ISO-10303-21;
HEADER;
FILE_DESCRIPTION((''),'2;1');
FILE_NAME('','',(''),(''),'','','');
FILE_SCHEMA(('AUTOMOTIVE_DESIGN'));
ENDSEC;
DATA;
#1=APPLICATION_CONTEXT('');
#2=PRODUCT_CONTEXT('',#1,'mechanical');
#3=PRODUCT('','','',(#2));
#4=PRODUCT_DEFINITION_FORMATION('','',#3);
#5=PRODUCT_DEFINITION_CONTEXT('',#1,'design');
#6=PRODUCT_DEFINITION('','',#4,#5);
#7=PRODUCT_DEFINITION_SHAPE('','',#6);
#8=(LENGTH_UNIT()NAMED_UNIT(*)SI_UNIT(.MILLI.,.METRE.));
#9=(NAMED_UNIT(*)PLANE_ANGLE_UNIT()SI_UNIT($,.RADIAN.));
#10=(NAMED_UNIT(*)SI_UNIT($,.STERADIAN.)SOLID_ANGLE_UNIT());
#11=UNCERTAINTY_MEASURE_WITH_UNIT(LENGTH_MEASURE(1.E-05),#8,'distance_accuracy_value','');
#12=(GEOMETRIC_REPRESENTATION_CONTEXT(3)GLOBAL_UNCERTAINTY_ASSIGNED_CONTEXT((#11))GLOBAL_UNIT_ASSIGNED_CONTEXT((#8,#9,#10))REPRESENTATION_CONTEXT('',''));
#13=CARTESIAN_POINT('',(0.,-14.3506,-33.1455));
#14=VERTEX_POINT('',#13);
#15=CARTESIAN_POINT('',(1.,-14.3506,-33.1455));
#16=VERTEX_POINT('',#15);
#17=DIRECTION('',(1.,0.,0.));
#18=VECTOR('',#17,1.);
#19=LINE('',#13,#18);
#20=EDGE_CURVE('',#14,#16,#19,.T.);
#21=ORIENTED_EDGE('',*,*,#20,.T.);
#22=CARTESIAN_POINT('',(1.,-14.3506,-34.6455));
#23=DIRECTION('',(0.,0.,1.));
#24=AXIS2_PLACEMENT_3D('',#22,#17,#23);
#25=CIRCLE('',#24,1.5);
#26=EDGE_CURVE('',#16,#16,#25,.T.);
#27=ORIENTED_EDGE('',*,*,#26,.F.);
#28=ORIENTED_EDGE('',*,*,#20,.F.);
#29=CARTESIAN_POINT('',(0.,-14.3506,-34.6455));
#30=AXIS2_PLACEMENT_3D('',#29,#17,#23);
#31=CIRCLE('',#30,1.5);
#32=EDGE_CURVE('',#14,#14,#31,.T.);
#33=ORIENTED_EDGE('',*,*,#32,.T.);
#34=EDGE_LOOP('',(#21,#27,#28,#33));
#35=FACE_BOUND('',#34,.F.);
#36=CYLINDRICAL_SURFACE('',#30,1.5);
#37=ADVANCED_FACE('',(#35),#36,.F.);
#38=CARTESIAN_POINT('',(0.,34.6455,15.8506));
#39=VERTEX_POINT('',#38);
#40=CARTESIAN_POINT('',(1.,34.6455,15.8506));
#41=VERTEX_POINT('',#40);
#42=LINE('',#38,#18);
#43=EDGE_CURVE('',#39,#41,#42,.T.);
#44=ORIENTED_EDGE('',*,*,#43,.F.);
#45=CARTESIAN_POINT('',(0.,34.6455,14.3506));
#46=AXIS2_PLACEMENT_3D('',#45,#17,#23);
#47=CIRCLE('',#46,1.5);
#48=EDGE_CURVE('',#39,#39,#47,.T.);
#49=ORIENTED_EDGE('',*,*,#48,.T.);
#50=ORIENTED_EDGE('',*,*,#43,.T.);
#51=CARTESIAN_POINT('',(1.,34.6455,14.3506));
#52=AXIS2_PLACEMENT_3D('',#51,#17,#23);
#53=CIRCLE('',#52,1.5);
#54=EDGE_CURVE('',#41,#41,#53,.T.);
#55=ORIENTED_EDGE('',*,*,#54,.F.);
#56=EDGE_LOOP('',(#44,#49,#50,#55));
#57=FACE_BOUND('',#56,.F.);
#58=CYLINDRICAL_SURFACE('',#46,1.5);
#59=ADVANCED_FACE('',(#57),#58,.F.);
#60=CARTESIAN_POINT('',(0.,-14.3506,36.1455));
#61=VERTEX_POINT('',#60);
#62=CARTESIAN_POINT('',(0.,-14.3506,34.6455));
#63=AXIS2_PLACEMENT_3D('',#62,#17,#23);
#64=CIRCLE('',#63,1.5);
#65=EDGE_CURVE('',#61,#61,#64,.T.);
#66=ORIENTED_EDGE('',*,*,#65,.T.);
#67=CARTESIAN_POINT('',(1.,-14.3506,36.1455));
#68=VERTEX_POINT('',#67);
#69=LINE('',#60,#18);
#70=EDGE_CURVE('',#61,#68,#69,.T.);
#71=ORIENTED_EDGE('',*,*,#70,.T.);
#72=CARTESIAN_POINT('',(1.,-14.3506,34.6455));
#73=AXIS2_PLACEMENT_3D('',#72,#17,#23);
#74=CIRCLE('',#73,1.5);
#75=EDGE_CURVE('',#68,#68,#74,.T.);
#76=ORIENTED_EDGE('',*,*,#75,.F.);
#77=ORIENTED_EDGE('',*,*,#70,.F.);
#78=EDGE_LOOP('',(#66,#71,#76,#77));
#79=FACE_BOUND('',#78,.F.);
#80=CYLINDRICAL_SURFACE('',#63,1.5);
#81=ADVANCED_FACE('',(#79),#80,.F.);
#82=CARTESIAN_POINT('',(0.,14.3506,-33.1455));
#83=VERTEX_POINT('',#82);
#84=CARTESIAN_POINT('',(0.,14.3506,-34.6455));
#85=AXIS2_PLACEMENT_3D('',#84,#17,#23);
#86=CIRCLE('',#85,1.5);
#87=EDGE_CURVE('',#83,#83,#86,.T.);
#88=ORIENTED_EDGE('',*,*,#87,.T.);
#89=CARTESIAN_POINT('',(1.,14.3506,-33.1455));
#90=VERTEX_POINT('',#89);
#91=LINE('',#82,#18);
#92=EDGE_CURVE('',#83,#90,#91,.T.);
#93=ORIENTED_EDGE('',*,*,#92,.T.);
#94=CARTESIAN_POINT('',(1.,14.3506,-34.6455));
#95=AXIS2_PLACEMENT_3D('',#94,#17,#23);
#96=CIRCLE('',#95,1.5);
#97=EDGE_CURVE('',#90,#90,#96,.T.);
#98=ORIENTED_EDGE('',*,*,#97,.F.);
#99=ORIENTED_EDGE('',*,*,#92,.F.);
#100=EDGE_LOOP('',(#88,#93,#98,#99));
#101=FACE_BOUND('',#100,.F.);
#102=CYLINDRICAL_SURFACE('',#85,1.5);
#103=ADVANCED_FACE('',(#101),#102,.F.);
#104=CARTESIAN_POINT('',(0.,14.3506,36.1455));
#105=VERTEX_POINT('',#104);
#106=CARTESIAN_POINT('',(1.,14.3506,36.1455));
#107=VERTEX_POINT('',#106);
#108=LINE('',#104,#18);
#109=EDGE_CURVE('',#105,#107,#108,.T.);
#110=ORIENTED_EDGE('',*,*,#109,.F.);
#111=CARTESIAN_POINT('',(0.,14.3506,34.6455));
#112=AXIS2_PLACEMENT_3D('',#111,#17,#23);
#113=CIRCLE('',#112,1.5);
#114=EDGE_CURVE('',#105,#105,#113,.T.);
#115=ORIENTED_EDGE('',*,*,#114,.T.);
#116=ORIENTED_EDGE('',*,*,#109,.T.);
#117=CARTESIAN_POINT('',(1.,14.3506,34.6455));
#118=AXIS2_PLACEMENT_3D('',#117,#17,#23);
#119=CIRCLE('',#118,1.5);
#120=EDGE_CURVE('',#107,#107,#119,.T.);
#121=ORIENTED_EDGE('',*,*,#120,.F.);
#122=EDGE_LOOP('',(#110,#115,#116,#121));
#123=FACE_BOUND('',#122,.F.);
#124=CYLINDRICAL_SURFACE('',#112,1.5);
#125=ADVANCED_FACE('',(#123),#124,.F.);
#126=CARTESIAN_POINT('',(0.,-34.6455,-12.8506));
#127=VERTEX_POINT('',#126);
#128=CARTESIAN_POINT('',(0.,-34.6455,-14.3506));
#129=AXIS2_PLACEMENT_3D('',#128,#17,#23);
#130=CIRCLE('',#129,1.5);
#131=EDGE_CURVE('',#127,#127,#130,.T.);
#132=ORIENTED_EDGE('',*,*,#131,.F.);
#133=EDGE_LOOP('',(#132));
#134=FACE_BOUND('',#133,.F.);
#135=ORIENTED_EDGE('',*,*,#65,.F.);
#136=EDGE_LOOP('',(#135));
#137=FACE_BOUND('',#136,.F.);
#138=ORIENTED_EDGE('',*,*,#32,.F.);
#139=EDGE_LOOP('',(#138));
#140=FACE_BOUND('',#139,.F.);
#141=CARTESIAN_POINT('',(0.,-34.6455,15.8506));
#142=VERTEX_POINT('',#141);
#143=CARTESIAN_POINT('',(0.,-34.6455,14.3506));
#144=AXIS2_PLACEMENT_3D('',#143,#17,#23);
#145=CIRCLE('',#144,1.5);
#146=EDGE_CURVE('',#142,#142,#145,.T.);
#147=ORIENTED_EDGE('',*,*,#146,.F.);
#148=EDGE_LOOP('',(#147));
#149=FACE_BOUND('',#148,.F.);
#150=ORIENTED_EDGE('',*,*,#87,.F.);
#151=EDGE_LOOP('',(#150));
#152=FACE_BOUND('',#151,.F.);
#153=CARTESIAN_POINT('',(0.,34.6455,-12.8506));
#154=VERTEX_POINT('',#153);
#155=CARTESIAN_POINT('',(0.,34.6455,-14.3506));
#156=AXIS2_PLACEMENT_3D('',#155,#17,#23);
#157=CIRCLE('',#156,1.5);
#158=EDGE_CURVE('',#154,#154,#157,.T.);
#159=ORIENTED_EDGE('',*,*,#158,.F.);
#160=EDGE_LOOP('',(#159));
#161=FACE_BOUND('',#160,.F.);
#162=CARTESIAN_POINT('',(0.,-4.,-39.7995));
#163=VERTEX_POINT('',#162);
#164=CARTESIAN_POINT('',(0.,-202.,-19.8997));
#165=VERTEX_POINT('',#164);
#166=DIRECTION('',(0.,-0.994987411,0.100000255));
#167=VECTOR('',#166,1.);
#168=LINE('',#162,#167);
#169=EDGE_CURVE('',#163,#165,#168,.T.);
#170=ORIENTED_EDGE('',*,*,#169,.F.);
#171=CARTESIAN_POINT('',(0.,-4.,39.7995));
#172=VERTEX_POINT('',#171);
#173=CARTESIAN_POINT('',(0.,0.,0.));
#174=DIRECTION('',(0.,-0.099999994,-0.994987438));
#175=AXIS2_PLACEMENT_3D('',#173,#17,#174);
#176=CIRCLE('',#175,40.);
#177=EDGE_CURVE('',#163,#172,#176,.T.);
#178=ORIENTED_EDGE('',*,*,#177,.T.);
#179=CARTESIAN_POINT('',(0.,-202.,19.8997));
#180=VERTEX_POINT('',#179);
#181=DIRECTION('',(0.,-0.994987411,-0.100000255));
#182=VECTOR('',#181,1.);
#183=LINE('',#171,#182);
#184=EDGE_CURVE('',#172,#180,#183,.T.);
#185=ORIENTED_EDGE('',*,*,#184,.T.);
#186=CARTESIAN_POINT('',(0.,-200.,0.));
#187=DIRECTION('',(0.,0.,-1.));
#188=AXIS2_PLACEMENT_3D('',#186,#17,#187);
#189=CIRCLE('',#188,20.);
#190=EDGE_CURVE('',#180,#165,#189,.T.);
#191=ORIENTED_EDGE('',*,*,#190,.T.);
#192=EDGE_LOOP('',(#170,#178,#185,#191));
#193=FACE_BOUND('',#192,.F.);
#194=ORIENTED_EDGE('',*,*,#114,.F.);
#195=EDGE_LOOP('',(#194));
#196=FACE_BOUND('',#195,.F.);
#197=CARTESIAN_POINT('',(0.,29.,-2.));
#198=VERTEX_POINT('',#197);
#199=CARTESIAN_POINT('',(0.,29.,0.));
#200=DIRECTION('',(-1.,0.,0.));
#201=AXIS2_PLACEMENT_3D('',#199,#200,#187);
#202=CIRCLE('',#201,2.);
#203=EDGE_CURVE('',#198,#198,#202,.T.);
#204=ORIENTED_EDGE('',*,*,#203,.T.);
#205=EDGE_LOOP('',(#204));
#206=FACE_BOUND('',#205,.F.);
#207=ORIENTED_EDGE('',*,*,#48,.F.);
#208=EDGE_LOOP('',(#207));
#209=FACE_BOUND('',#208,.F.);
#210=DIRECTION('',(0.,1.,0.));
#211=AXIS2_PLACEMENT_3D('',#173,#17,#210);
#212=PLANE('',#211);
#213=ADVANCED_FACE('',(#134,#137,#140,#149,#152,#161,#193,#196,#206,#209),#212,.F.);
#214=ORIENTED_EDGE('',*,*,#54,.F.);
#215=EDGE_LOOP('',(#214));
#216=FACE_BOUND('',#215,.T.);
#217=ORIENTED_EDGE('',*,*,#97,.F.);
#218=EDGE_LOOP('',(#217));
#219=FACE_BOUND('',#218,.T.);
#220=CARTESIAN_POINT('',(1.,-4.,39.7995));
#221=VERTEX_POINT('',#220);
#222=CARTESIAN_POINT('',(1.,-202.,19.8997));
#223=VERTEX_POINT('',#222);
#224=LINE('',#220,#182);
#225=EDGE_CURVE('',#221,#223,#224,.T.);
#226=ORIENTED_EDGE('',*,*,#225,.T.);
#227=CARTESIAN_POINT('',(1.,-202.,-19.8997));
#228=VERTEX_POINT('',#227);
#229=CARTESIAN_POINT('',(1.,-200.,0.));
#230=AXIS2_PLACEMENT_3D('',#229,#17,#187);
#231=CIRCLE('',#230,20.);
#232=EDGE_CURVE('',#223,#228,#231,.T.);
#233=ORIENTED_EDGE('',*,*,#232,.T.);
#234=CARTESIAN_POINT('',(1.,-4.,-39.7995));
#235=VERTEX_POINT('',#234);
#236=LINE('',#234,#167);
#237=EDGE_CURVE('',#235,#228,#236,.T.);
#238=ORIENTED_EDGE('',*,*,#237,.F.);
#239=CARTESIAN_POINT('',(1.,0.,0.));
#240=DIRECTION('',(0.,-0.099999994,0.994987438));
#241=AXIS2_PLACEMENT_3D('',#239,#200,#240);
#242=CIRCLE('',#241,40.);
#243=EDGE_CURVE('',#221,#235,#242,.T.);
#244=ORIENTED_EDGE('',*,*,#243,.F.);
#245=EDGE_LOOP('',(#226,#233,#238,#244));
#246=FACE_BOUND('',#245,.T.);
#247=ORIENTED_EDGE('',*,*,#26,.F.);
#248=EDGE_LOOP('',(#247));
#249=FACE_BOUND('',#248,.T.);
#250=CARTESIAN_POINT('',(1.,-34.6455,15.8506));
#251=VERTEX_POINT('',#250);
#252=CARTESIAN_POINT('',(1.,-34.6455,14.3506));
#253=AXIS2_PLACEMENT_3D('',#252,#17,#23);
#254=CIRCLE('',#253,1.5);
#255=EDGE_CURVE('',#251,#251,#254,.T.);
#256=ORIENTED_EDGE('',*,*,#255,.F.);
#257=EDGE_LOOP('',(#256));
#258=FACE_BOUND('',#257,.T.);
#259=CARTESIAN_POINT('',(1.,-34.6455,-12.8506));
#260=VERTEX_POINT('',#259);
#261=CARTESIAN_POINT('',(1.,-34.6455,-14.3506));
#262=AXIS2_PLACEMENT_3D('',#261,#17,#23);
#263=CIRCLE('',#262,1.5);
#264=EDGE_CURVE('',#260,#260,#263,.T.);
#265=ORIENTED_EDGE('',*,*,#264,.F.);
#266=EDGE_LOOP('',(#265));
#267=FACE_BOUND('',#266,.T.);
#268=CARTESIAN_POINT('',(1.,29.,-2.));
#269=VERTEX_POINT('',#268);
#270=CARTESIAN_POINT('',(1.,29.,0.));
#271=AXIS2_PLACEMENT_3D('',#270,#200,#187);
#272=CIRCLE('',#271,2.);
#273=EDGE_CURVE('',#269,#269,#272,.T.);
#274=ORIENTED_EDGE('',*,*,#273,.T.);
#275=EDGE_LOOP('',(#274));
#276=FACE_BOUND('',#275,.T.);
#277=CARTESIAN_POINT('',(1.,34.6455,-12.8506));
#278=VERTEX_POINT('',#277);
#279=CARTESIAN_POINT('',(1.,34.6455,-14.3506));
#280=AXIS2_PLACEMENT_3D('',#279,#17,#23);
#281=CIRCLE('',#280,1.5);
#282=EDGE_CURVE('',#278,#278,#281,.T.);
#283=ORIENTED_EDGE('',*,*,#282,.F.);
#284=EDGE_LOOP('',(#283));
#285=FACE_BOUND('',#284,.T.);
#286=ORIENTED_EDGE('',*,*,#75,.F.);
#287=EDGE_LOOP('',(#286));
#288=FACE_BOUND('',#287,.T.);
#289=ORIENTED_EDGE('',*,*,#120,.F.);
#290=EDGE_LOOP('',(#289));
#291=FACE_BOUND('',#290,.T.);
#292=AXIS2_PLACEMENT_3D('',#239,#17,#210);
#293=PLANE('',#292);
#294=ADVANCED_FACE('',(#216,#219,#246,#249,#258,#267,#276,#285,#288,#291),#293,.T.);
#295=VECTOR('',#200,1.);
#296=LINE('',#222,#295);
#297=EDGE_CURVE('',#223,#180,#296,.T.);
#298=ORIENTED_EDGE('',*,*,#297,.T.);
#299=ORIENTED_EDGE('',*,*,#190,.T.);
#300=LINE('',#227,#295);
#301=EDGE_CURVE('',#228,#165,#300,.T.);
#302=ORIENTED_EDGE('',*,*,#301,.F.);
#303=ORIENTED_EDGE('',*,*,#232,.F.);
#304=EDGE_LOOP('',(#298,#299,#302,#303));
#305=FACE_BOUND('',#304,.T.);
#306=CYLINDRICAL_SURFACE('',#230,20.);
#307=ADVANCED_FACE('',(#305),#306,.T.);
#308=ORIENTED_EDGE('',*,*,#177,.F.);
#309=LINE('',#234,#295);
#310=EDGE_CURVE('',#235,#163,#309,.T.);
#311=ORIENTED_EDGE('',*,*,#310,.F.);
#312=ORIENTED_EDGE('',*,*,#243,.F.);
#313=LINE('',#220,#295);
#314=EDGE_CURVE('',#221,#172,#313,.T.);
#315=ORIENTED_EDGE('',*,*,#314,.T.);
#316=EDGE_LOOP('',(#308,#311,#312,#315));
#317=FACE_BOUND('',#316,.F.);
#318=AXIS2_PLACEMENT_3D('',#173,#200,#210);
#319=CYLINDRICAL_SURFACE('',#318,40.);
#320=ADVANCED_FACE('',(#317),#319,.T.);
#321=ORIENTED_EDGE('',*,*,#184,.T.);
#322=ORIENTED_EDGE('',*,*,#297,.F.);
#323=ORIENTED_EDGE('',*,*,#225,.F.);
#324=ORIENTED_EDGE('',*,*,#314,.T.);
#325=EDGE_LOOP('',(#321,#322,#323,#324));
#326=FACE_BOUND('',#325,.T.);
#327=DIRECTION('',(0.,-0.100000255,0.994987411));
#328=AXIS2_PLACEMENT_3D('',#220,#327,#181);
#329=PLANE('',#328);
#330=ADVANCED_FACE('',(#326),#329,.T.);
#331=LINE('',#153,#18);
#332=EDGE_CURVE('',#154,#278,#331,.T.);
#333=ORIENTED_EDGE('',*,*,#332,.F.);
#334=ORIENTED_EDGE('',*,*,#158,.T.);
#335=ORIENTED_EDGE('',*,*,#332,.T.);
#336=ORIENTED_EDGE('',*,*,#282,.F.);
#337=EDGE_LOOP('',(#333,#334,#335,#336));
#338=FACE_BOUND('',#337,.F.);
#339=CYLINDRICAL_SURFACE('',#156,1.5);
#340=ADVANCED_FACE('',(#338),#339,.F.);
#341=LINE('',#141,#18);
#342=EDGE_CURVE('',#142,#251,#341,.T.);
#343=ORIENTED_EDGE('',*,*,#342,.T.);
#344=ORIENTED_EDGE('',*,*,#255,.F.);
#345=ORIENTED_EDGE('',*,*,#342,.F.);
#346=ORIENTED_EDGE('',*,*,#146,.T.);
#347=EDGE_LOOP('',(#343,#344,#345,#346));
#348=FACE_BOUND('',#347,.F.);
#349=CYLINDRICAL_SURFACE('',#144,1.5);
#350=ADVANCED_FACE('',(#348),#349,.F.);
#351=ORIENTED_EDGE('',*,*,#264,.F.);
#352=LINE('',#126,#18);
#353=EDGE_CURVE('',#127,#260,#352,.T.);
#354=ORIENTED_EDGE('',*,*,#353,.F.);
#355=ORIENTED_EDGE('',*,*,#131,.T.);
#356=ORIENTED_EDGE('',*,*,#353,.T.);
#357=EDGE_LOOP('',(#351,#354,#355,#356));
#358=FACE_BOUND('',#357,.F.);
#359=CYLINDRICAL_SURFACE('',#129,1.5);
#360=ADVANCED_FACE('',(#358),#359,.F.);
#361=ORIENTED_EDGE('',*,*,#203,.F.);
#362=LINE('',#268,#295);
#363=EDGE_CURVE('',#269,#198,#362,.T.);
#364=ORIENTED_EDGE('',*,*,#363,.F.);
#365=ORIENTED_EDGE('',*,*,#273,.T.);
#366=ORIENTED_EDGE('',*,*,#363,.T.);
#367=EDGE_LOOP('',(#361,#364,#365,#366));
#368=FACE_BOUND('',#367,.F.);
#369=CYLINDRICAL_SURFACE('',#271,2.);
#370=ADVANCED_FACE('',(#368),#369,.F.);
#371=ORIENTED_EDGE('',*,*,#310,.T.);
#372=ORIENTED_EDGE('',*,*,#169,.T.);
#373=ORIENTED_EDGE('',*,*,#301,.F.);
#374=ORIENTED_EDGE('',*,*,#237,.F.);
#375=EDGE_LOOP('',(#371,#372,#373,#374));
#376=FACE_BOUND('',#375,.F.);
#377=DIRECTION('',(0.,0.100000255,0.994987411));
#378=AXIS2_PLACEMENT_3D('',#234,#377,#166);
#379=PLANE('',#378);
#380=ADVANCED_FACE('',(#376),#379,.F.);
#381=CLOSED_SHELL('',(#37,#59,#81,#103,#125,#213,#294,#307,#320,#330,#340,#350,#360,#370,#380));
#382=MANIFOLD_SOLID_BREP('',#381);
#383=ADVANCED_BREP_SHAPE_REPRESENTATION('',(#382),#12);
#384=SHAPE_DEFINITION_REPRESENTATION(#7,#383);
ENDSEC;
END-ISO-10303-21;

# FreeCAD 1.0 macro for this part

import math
import FreeCAD as App
import Part
import Sketcher
from FreeCAD import Vector

doc = App.newDocument("Part")
body = doc.addObject("PartDesign::Body", "Body")

sketch1 = body.newObject("Sketcher::SketchObject", "Sketch")
sketch1.AttachmentSupport = (doc.getObject("YZ_Plane"), [""])
sketch1.MapMode = "FlatFace"
sketch1.addGeometry(Part.Circle(Vector(0, 0, 0), Vector(0, 0, 1), 40), False)
sketch1.addConstraint(Sketcher.Constraint("Coincident", 0, 3, -1, 1))
sketch1.addConstraint(Sketcher.Constraint("Diameter", 0, 80.0))
pad1 = body.newObject("PartDesign::Pad", "Pad")
pad1.Profile = sketch1
pad1.Length = 1

sketch2 = body.newObject("Sketcher::SketchObject", "Sketch001")
sketch2.AttachmentSupport = (doc.getObject("YZ_Plane"), [""])
sketch2.MapMode = "FlatFace"
sketch2.AttachmentOffset = App.Placement(Vector(0, 0, 1), App.Rotation())
sketch2.addGeometry(Part.Circle(Vector(29, 0, 0), Vector(0, 0, 1), 2), False)
sketch2.addConstraint(Sketcher.Constraint("PointOnObject", 0, 3, -1))
sketch2.addConstraint(Sketcher.Constraint("Diameter", 0, 4.0))
sketch2.addConstraint(Sketcher.Constraint("DistanceX", -1, 1, 0, 3, 29.0))
doc.recompute()
hole = body.newObject("PartDesign::Hole", "Hole")
hole.Profile = sketch2
hole.ThreadType = "None"
hole.Diameter = 4
hole.DepthType = "ThroughAll"

sketch3 = body.newObject("Sketcher::SketchObject", "Sketch002")
sketch3.AttachmentSupport = (doc.getObject("YZ_Plane"), [""])
sketch3.MapMode = "FlatFace"
sketch3.AttachmentOffset = App.Placement(Vector(0, 0, 1), App.Rotation())
sketch3.addGeometry(Part.ArcOfCircle(Part.Circle(Vector(-200, 0, 0), Vector(0, 0, 1), 20), math.radians(96), math.radians(264)), False)
sketch3.addGeometry(Part.LineSegment(Vector(-202, -20, 0), Vector(-4, -40, 0)), False)
sketch3.addGeometry(Part.ArcOfCircle(Part.Circle(Vector(0, 0, 0), Vector(0, 0, 1), 40), math.radians(96), math.radians(264)), False)
sketch3.addGeometry(Part.LineSegment(Vector(-4, 40, 0), Vector(-202, 20, 0)), False)
sketch3.addConstraint(Sketcher.Constraint("Tangent", 0, 2, 1, 1))
sketch3.addConstraint(Sketcher.Constraint("Tangent", 1, 2, 2, 2))
sketch3.addConstraint(Sketcher.Constraint("Tangent", 2, 1, 3, 1))
sketch3.addConstraint(Sketcher.Constraint("Tangent", 3, 2, 0, 1))
sketch3.addConstraint(Sketcher.Constraint("Coincident", 2, 3, -1, 1))
sketch3.addConstraint(Sketcher.Constraint("PointOnObject", 0, 3, -1))
sketch3.addConstraint(Sketcher.Constraint("Radius", 0, 20.0))
sketch3.addConstraint(Sketcher.Constraint("Radius", 2, 40.0))
sketch3.addConstraint(Sketcher.Constraint("DistanceX", 0, 3, -1, 1, 200.0))
pad2 = body.newObject("PartDesign::Pad", "Pad001")
pad2.Profile = sketch3
pad2.Length = 1
pad2.Reversed = True

sketch4 = body.newObject("Sketcher::SketchObject", "Sketch003")
sketch4.AttachmentSupport = (doc.getObject("YZ_Plane"), [""])
sketch4.MapMode = "FlatFace"
sketch4.addGeometry(Part.Circle(Vector(34.6, -14.4, 0), Vector(0, 0, 1), 1.5), False)
sketch4.addGeometry(Part.Circle(Vector(14.4, -34.6, 0), Vector(0, 0, 1), 1.5), False)
sketch4.addGeometry(Part.Circle(Vector(-14.4, -34.6, 0), Vector(0, 0, 1), 1.5), False)
sketch4.addGeometry(Part.Circle(Vector(-34.6, -14.4, 0), Vector(0, 0, 1), 1.5), False)
sketch4.addGeometry(Part.Circle(Vector(-34.6, 14.4, 0), Vector(0, 0, 1), 1.5), False)
sketch4.addGeometry(Part.Circle(Vector(-14.4, 34.6, 0), Vector(0, 0, 1), 1.5), False)
sketch4.addGeometry(Part.Circle(Vector(14.4, 34.6, 0), Vector(0, 0, 1), 1.5), False)
sketch4.addGeometry(Part.Circle(Vector(34.6, 14.4, 0), Vector(0, 0, 1), 1.5), False)
sketch4.addConstraint(Sketcher.Constraint("Equal", 0, 1))
sketch4.addConstraint(Sketcher.Constraint("Equal", 1, 2))
sketch4.addConstraint(Sketcher.Constraint("Equal", 2, 3))
sketch4.addConstraint(Sketcher.Constraint("Equal", 3, 4))
sketch4.addConstraint(Sketcher.Constraint("Equal", 4, 5))
sketch4.addConstraint(Sketcher.Constraint("Equal", 5, 6))
sketch4.addConstraint(Sketcher.Constraint("Equal", 6, 7))
sketch4.addConstraint(Sketcher.Constraint("Symmetric", 0, 3, 4, 3, -1, 1))
sketch4.addConstraint(Sketcher.Constraint("Symmetric", 1, 3, 5, 3, -1, 1))
sketch4.addConstraint(Sketcher.Constraint("Symmetric", 2, 3, 6, 3, -1, 1))
sketch4.addConstraint(Sketcher.Constraint("Symmetric", 3, 3, 7, 3, -1, 1))
sketch4.addConstraint(Sketcher.Constraint("Symmetric", 1, 3, 2, 3, -2))
sketch4.addConstraint(Sketcher.Constraint("Symmetric", 0, 3, 3, 3, -2))
sketch4.addConstraint(Sketcher.Constraint("Diameter", 0, 3.0))
sketch4.addConstraint(Sketcher.Constraint("DistanceX", 1, 3, 0, 3, 20.295))
sketch4.addConstraint(Sketcher.Constraint("DistanceY", 1, 3, 0, 3, 20.295))
sketch4.addConstraint(Sketcher.Constraint("DistanceX", 2, 3, 0, 3, 48.996))
sketch4.addConstraint(Sketcher.Constraint("DistanceY", 2, 3, 4, 3, 48.996))
doc.recompute()
hole2 = body.newObject("PartDesign::Hole", "Hole001")
hole2.Profile = sketch4
hole2.ThreadType = "None"
hole2.Diameter = 3
hole2.DepthType = "ThroughAll"
hole2.Reversed = True

doc.recompute()
